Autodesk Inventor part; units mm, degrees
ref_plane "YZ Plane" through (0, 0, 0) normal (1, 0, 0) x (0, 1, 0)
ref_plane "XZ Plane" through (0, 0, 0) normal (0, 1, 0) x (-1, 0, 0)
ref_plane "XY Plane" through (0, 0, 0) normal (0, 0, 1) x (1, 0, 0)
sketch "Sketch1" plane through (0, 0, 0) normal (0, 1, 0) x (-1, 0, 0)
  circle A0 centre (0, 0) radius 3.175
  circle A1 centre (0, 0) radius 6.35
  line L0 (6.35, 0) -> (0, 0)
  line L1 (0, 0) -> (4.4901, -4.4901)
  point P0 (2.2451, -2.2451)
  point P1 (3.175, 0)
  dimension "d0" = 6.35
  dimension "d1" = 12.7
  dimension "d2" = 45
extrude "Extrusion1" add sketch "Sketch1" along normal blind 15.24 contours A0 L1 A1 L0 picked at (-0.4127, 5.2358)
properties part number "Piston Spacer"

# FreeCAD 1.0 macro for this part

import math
import FreeCAD as App
import Part
import Sketcher

V = App.Vector
Q = App.Units.Quantity

doc = App.newDocument("Part")
body = doc.addObject("PartDesign::Body", "Body")

sketch1 = doc.addObject("Sketcher::SketchObject", "Sketch")
body.addObject(sketch1)
sketch1.AttachmentSupport = (doc.XZ_Plane, [""])
sketch1.MapMode = "FlatFace"
sketch1.addGeometry(Part.ArcOfCircle(Part.Circle(V(0, 0, 0), V(0, 0, 1), 3.2), math.radians(-135), math.radians(180)), False)
sketch1.addGeometry(Part.LineSegment(V(-3.2, 0, 0), V(-6.3, 0, 0)), False)
sketch1.addGeometry(Part.ArcOfCircle(Part.Circle(V(0, 0, 0), V(0, 0, 1), 6.3), math.radians(-135), math.radians(180)), False)
sketch1.addGeometry(Part.LineSegment(V(-4.5, -4.5, 0), V(-2.2, -2.2, 0)), False)
sketch1.addConstraint(Sketcher.Constraint("Coincident", 0, 2, 1, 1))
sketch1.addConstraint(Sketcher.Constraint("Coincident", 1, 2, 2, 2))
sketch1.addConstraint(Sketcher.Constraint("Coincident", 2, 1, 3, 1))
sketch1.addConstraint(Sketcher.Constraint("Coincident", 3, 2, 0, 1))
sketch1.addConstraint(Sketcher.Constraint("Horizontal", 1))
sketch1.addConstraint(Sketcher.Constraint("Coincident", 0, 3, -1, 1))
sketch1.addConstraint(Sketcher.Constraint("Coincident", 2, 3, -1, 1))
sketch1.addConstraint(Sketcher.Constraint("PointOnObject", 0, 2, -1))
sketch1.addConstraint(Sketcher.Constraint("Radius", 2, Q("0.25 in")))
sketch1.addConstraint(Sketcher.Constraint("Angle", 3, Q("45 deg")))
sketch1.addConstraint(Sketcher.Constraint("Radius", 0, Q("0.125 in")))
sketch1.addConstraint(Sketcher.Constraint("DistanceX", 3, 2, -1, 1, Q("0.0884 in")))
pad1 = doc.addObject("PartDesign::Pad", "Pad")
body.addObject(pad1)
pad1.Profile = sketch1
pad1.Length = Q("0.6 in")
pad1.Reversed = True

doc.recompute()
